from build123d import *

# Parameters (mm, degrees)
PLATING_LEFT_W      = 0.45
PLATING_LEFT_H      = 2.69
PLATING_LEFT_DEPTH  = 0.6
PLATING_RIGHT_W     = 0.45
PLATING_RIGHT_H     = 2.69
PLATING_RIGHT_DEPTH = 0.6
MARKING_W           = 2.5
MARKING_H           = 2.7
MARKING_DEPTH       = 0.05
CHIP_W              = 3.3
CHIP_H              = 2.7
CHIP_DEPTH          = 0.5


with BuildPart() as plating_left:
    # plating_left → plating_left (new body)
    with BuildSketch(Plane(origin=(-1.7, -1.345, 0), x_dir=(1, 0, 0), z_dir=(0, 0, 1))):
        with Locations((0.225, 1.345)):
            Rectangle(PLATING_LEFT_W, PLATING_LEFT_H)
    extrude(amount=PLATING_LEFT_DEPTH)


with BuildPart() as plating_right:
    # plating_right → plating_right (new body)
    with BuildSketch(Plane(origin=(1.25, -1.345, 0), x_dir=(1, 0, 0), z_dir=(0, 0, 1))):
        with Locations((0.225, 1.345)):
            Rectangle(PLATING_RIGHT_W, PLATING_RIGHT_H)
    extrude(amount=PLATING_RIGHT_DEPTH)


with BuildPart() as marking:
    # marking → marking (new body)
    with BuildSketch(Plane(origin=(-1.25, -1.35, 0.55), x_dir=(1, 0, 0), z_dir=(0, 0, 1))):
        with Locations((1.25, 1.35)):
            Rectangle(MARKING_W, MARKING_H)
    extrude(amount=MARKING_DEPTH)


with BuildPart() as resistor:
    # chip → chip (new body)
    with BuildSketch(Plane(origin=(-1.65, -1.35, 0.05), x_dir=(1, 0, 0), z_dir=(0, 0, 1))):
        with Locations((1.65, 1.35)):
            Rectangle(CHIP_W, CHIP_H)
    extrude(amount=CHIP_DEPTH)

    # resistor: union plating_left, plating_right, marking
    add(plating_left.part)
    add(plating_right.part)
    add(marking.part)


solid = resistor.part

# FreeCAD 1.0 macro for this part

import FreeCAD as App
import Part
import Sketcher
from FreeCAD import Vector

doc = App.newDocument("Part")
body = doc.addObject("PartDesign::Body", "Body")

sketch1 = body.newObject("Sketcher::SketchObject", "Sketch")
sketch1.AttachmentSupport = (doc.getObject("XY_Plane"), [""])
sketch1.MapMode = "FlatFace"
sketch1.addGeometry(Part.LineSegment(Vector(-1.7, 1.34, 0), Vector(-1.7, -1.34, 0)), False)
sketch1.addGeometry(Part.LineSegment(Vector(-1.7, -1.34, 0), Vector(-1.25, -1.34, 0)), False)
sketch1.addGeometry(Part.LineSegment(Vector(-1.25, -1.34, 0), Vector(-1.25, 1.34, 0)), False)
sketch1.addGeometry(Part.LineSegment(Vector(-1.25, 1.34, 0), Vector(-1.7, 1.34, 0)), False)
sketch1.addConstraint(Sketcher.Constraint("Coincident", 0, 2, 1, 1))
sketch1.addConstraint(Sketcher.Constraint("Coincident", 1, 2, 2, 1))
sketch1.addConstraint(Sketcher.Constraint("Coincident", 2, 2, 3, 1))
sketch1.addConstraint(Sketcher.Constraint("Coincident", 3, 2, 0, 1))
sketch1.addConstraint(Sketcher.Constraint("Vertical", 0))
sketch1.addConstraint(Sketcher.Constraint("Horizontal", 1))
sketch1.addConstraint(Sketcher.Constraint("Vertical", 2))
sketch1.addConstraint(Sketcher.Constraint("Horizontal", 3))
sketch1.addConstraint(Sketcher.Constraint("DistanceX", 1, 1, 1, 2, 0.45))
sketch1.addConstraint(Sketcher.Constraint("DistanceY", 0, 2, 0, 1, 2.69))
sketch1.addConstraint(Sketcher.Constraint("DistanceX", 0, 2, -1, 1, 1.7))
sketch1.addConstraint(Sketcher.Constraint("DistanceY", 0, 2, -1, 1, 1.345))
pad1 = body.newObject("PartDesign::Pad", "Pad")
pad1.Profile = sketch1
pad1.Length = 0.6
body2 = doc.addObject("PartDesign::Body", "Body001")

sketch2 = body2.newObject("Sketcher::SketchObject", "Sketch001")
sketch2.AttachmentSupport = (doc.getObject("XY_Plane001"), [""])
sketch2.MapMode = "FlatFace"
sketch2.addGeometry(Part.LineSegment(Vector(1.25, 1.34, 0), Vector(1.25, -1.34, 0)), False)
sketch2.addGeometry(Part.LineSegment(Vector(1.25, -1.34, 0), Vector(1.7, -1.34, 0)), False)
sketch2.addGeometry(Part.LineSegment(Vector(1.7, -1.34, 0), Vector(1.7, 1.34, 0)), False)
sketch2.addGeometry(Part.LineSegment(Vector(1.7, 1.34, 0), Vector(1.25, 1.34, 0)), False)
sketch2.addConstraint(Sketcher.Constraint("Coincident", 0, 2, 1, 1))
sketch2.addConstraint(Sketcher.Constraint("Coincident", 1, 2, 2, 1))
sketch2.addConstraint(Sketcher.Constraint("Coincident", 2, 2, 3, 1))
sketch2.addConstraint(Sketcher.Constraint("Coincident", 3, 2, 0, 1))
sketch2.addConstraint(Sketcher.Constraint("Vertical", 0))
sketch2.addConstraint(Sketcher.Constraint("Horizontal", 1))
sketch2.addConstraint(Sketcher.Constraint("Vertical", 2))
sketch2.addConstraint(Sketcher.Constraint("Horizontal", 3))
sketch2.addConstraint(Sketcher.Constraint("DistanceX", 1, 1, 1, 2, 0.45))
sketch2.addConstraint(Sketcher.Constraint("DistanceY", 0, 2, 0, 1, 2.69))
sketch2.addConstraint(Sketcher.Constraint("DistanceX", -1, 1, 1, 2, 1.7))
sketch2.addConstraint(Sketcher.Constraint("DistanceY", 0, 2, -1, 1, 1.345))
pad2 = body2.newObject("PartDesign::Pad", "Pad001")
pad2.Profile = sketch2
pad2.Length = 0.6
body3 = doc.addObject("PartDesign::Body", "Body002")

sketch3 = body3.newObject("Sketcher::SketchObject", "Sketch002")
sketch3.AttachmentSupport = (doc.getObject("XY_Plane002"), [""])
sketch3.MapMode = "FlatFace"
sketch3.AttachmentOffset = App.Placement(Vector(0, 0, 0.55), App.Rotation())
sketch3.addGeometry(Part.LineSegment(Vector(-1.2, 1.4, 0), Vector(-1.2, -1.4, 0)), False)
sketch3.addGeometry(Part.LineSegment(Vector(-1.2, -1.4, 0), Vector(1.2, -1.4, 0)), False)
sketch3.addGeometry(Part.LineSegment(Vector(1.2, -1.4, 0), Vector(1.2, 1.4, 0)), False)
sketch3.addGeometry(Part.LineSegment(Vector(1.2, 1.4, 0), Vector(-1.2, 1.4, 0)), False)
sketch3.addConstraint(Sketcher.Constraint("Coincident", 0, 2, 1, 1))
sketch3.addConstraint(Sketcher.Constraint("Coincident", 1, 2, 2, 1))
sketch3.addConstraint(Sketcher.Constraint("Coincident", 2, 2, 3, 1))
sketch3.addConstraint(Sketcher.Constraint("Coincident", 3, 2, 0, 1))
sketch3.addConstraint(Sketcher.Constraint("Vertical", 0))
sketch3.addConstraint(Sketcher.Constraint("Horizontal", 1))
sketch3.addConstraint(Sketcher.Constraint("Vertical", 2))
sketch3.addConstraint(Sketcher.Constraint("Horizontal", 3))
sketch3.addConstraint(Sketcher.Constraint("Symmetric", 0, 2, 2, 2, -1, 1))
sketch3.addConstraint(Sketcher.Constraint("DistanceX", 1, 1, 1, 2, 2.5))
sketch3.addConstraint(Sketcher.Constraint("DistanceY", 0, 2, 0, 1, 2.7))
pad3 = body3.newObject("PartDesign::Pad", "Pad002")
pad3.Profile = sketch3
pad3.Length = 0.05
body4 = doc.addObject("PartDesign::Body", "Body003")

sketch4 = body4.newObject("Sketcher::SketchObject", "Sketch003")
sketch4.AttachmentSupport = (doc.getObject("XY_Plane003"), [""])
sketch4.MapMode = "FlatFace"
sketch4.AttachmentOffset = App.Placement(Vector(0, 0, 0.05), App.Rotation())
sketch4.addGeometry(Part.LineSegment(Vector(-1.6, 1.4, 0), Vector(-1.6, -1.4, 0)), False)
sketch4.addGeometry(Part.LineSegment(Vector(-1.6, -1.4, 0), Vector(1.6, -1.4, 0)), False)
sketch4.addGeometry(Part.LineSegment(Vector(1.6, -1.4, 0), Vector(1.6, 1.4, 0)), False)
sketch4.addGeometry(Part.LineSegment(Vector(1.6, 1.4, 0), Vector(-1.6, 1.4, 0)), False)
sketch4.addConstraint(Sketcher.Constraint("Coincident", 0, 2, 1, 1))
sketch4.addConstraint(Sketcher.Constraint("Coincident", 1, 2, 2, 1))
sketch4.addConstraint(Sketcher.Constraint("Coincident", 2, 2, 3, 1))
sketch4.addConstraint(Sketcher.Constraint("Coincident", 3, 2, 0, 1))
sketch4.addConstraint(Sketcher.Constraint("Vertical", 0))
sketch4.addConstraint(Sketcher.Constraint("Horizontal", 1))
sketch4.addConstraint(Sketcher.Constraint("Vertical", 2))
sketch4.addConstraint(Sketcher.Constraint("Horizontal", 3))
sketch4.addConstraint(Sketcher.Constraint("Symmetric", 0, 2, 2, 2, -1, 1))
sketch4.addConstraint(Sketcher.Constraint("DistanceX", 1, 1, 1, 2, 3.3))
sketch4.addConstraint(Sketcher.Constraint("DistanceY", 0, 2, 0, 1, 2.7))
pad4 = body4.newObject("PartDesign::Pad", "Pad003")
pad4.Profile = sketch4
pad4.Length = 0.5
doc.recompute()

boolean = body4.newObject("PartDesign::Boolean", "Boolean")
boolean.Type = "Fuse"
boolean.addObjects([body])
doc.recompute()

boolean2 = body4.newObject("PartDesign::Boolean", "Boolean001")
boolean2.Type = "Fuse"
boolean2.addObjects([body2])
doc.recompute()

boolean3 = body4.newObject("PartDesign::Boolean", "Boolean002")
boolean3.Type = "Fuse"
boolean3.addObjects([body3])

doc.recompute()
